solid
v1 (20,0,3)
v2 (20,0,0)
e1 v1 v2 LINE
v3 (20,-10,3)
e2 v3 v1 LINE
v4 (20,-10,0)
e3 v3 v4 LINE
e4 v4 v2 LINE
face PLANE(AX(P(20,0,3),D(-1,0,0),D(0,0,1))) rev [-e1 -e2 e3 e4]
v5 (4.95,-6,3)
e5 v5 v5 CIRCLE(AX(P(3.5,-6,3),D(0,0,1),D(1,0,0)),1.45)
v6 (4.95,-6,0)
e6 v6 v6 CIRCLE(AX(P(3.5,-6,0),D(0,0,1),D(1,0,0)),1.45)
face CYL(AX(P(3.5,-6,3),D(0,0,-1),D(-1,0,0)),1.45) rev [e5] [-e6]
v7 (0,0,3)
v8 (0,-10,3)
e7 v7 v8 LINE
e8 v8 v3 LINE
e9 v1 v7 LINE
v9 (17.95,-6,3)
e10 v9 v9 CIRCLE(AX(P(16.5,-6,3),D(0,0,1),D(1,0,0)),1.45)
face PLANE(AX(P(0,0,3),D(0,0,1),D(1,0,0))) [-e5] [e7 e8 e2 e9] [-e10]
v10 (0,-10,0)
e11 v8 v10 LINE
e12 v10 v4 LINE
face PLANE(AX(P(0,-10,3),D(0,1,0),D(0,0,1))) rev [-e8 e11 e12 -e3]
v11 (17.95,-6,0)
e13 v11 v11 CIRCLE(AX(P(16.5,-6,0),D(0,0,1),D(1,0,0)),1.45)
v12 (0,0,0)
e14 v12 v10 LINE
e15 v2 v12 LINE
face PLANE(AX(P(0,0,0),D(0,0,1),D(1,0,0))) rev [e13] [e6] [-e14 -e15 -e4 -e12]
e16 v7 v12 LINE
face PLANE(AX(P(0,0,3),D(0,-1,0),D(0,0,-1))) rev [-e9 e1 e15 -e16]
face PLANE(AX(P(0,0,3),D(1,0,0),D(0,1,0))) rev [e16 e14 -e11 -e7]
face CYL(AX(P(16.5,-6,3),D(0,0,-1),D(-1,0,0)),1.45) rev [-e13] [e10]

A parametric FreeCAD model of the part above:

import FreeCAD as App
import Part
import Sketcher

V = App.Vector

doc = App.newDocument("Part")
body = doc.addObject("PartDesign::Body", "Body")

sketch1 = doc.addObject("Sketcher::SketchObject", "Sketch")
body.addObject(sketch1)
sketch1.AttachmentSupport = (doc.XY_Plane, [""])
sketch1.MapMode = "FlatFace"
sketch1.addGeometry([
    Part.LineSegment(V(0, 0, 0), V(0, -10, 0)),
    Part.LineSegment(V(0, -10, 0), V(20, -10, 0)),
    Part.LineSegment(V(20, -10, 0), V(20, 0, 0)),
    Part.LineSegment(V(20, 0, 0), V(0, 0, 0)),
    Part.Circle(V(3.5, -6, 0), V(0, 0, 1), 1.45),
    Part.Circle(V(16.5, -6, 0), V(0, 0, 1), 1.45),
], False)
sketch1.addConstraint([
    Sketcher.Constraint("Coincident", 0, 2, 1, 1),
    Sketcher.Constraint("Coincident", 1, 2, 2, 1),
    Sketcher.Constraint("Coincident", 2, 2, 3, 1),
    Sketcher.Constraint("Coincident", 3, 2, 0, 1),
    Sketcher.Constraint("Vertical", 0),
    Sketcher.Constraint("Horizontal", 1),
    Sketcher.Constraint("Vertical", 2),
    Sketcher.Constraint("Horizontal", 3),
    Sketcher.Constraint("Coincident", 3, 2, -1, 1),
    Sketcher.Constraint("Equal", 4, 5),
    Sketcher.Constraint("Horizontal", 4, 3, 5, 3),
    Sketcher.Constraint("Diameter", 4, 2.9),
    Sketcher.Constraint("DistanceX", 1, 1, 1, 2, 20.0),
    Sketcher.Constraint("DistanceY", 0, 2, 0, 1, 10.0),
    Sketcher.Constraint("DistanceY", 4, 3, -1, 1, 6.0),
    Sketcher.Constraint("DistanceX", 4, 3, 5, 3, 13.0),
    Sketcher.Constraint("DistanceX", -1, 1, 4, 3, 3.5),
])
pad1 = doc.addObject("PartDesign::Pad", "Pad")
body.addObject(pad1)
pad1.Profile = sketch1
pad1.Length = 3

doc.recompute()
